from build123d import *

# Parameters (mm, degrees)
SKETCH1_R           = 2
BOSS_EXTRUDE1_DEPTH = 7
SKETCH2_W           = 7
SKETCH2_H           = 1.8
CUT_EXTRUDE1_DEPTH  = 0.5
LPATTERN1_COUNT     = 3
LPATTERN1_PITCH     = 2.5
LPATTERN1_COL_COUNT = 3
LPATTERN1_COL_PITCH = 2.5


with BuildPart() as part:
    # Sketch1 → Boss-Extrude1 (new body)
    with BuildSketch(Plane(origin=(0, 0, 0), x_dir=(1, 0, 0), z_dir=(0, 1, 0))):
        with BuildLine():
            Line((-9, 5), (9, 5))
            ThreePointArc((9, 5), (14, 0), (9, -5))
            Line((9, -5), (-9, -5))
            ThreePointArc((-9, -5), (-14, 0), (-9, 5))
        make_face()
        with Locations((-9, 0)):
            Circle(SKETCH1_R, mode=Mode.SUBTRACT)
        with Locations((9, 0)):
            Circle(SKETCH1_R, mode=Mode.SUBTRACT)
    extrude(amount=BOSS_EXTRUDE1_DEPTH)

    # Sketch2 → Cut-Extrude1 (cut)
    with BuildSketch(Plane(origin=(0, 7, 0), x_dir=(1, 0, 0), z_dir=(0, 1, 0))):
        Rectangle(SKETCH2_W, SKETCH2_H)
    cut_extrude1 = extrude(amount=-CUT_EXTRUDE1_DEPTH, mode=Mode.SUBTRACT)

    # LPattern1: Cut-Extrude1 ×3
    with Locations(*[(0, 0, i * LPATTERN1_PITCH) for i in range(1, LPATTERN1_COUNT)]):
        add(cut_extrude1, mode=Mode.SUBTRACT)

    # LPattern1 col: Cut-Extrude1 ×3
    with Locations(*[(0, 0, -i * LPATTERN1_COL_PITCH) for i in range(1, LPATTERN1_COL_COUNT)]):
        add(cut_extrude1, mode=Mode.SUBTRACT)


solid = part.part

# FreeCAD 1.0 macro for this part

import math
import FreeCAD as App
import Part
import Sketcher

V = App.Vector

doc = App.newDocument("Part")
body = doc.addObject("PartDesign::Body", "Body")

sketch1 = body.newObject("Sketcher::SketchObject", "Sketch")
sketch1.AttachmentSupport = (doc.getObject("XZ_Plane"), [""])
sketch1.MapMode = "FlatFace"
sketch1.addGeometry(Part.LineSegment(V(9, -5, 0), V(-9, -5, 0)), False)
sketch1.addGeometry(Part.ArcOfCircle(Part.Circle(V(-9, 0, 0), V(0, 0, 1), 5), math.radians(90), math.radians(270)), False)
sketch1.addGeometry(Part.LineSegment(V(-9, 5, 0), V(9, 5, 0)), False)
sketch1.addGeometry(Part.ArcOfCircle(Part.Circle(V(9, 0, 0), V(0, 0, 1), 5), math.radians(-90), math.radians(90)), False)
sketch1.addGeometry(Part.Circle(V(9, 0, 0), V(0, 0, 1), 2), False)
sketch1.addGeometry(Part.Circle(V(-9, 0, 0), V(0, 0, 1), 2), False)
sketch1.addConstraint(Sketcher.Constraint("Tangent", 0, 2, 1, 2))
sketch1.addConstraint(Sketcher.Constraint("Tangent", 1, 1, 2, 1))
sketch1.addConstraint(Sketcher.Constraint("Tangent", 2, 2, 3, 2))
sketch1.addConstraint(Sketcher.Constraint("Tangent", 3, 1, 0, 1))
sketch1.addConstraint(Sketcher.Constraint("Horizontal", 0))
sketch1.addConstraint(Sketcher.Constraint("Horizontal", 2))
sketch1.addConstraint(Sketcher.Constraint("Coincident", 4, 3, 3, 3))
sketch1.addConstraint(Sketcher.Constraint("Coincident", 5, 3, 1, 3))
sketch1.addConstraint(Sketcher.Constraint("Equal", 4, 5))
sketch1.addConstraint(Sketcher.Constraint("Symmetric", 1, 3, 3, 3, -1, 1))
sketch1.addConstraint(Sketcher.Constraint("Diameter", 4, 4.0))
sketch1.addConstraint(Sketcher.Constraint("Radius", 1, 5.0))
sketch1.addConstraint(Sketcher.Constraint("DistanceX", 0, 2, 0, 1, 18.0))
pad1 = body.newObject("PartDesign::Pad", "Pad")
pad1.Profile = sketch1
pad1.Length = 7
pad1.Reversed = True

sketch2 = body.newObject("Sketcher::SketchObject", "Sketch001")
sketch2.AttachmentSupport = (doc.getObject("XZ_Plane"), [""])
sketch2.MapMode = "FlatFace"
sketch2.AttachmentOffset = App.Placement(V(0, 0, -7), App.Rotation())
sketch2.addGeometry(Part.LineSegment(V(-3.5, -0.9, 0), V(-3.5, 0.9, 0)), False)
sketch2.addGeometry(Part.LineSegment(V(-3.5, 0.9, 0), V(3.5, 0.9, 0)), False)
sketch2.addGeometry(Part.LineSegment(V(3.5, 0.9, 0), V(3.5, -0.9, 0)), False)
sketch2.addGeometry(Part.LineSegment(V(3.5, -0.9, 0), V(-3.5, -0.9, 0)), False)
sketch2.addConstraint(Sketcher.Constraint("Coincident", 0, 2, 1, 1))
sketch2.addConstraint(Sketcher.Constraint("Coincident", 1, 2, 2, 1))
sketch2.addConstraint(Sketcher.Constraint("Coincident", 2, 2, 3, 1))
sketch2.addConstraint(Sketcher.Constraint("Coincident", 3, 2, 0, 1))
sketch2.addConstraint(Sketcher.Constraint("Vertical", 0))
sketch2.addConstraint(Sketcher.Constraint("Horizontal", 1))
sketch2.addConstraint(Sketcher.Constraint("Vertical", 2))
sketch2.addConstraint(Sketcher.Constraint("Horizontal", 3))
sketch2.addConstraint(Sketcher.Constraint("Symmetric", 0, 2, 2, 2, -1, 1))
sketch2.addConstraint(Sketcher.Constraint("DistanceX", 1, 1, 1, 2, 7.0))
sketch2.addConstraint(Sketcher.Constraint("DistanceY", 0, 1, 0, 2, 1.8))
pocket1 = body.newObject("PartDesign::Pocket", "Pocket")
pocket1.Profile = sketch2
pocket1.Length = 0.5
pocket1.Reversed = True
doc.recompute()

linearpattern = body.newObject("PartDesign::LinearPattern", "LinearPattern")
linearpattern.Originals = [pocket1]
linearpattern.Direction = (doc.getObject("Z_Axis"), [""])
linearpattern.Mode = "offset"
linearpattern.Offset = 2.5
linearpattern.Occurrences = 3
body.Tip = linearpattern
doc.recompute()

linearpattern2 = body.newObject("PartDesign::LinearPattern", "LinearPattern001")
linearpattern2.Originals = [pocket1]
linearpattern2.Direction = (doc.getObject("Z_Axis"), [""])
linearpattern2.Mode = "offset"
linearpattern2.Offset = 2.5
linearpattern2.Occurrences = 3
linearpattern2.Reversed = True
body.Tip = linearpattern2

doc.recompute()
